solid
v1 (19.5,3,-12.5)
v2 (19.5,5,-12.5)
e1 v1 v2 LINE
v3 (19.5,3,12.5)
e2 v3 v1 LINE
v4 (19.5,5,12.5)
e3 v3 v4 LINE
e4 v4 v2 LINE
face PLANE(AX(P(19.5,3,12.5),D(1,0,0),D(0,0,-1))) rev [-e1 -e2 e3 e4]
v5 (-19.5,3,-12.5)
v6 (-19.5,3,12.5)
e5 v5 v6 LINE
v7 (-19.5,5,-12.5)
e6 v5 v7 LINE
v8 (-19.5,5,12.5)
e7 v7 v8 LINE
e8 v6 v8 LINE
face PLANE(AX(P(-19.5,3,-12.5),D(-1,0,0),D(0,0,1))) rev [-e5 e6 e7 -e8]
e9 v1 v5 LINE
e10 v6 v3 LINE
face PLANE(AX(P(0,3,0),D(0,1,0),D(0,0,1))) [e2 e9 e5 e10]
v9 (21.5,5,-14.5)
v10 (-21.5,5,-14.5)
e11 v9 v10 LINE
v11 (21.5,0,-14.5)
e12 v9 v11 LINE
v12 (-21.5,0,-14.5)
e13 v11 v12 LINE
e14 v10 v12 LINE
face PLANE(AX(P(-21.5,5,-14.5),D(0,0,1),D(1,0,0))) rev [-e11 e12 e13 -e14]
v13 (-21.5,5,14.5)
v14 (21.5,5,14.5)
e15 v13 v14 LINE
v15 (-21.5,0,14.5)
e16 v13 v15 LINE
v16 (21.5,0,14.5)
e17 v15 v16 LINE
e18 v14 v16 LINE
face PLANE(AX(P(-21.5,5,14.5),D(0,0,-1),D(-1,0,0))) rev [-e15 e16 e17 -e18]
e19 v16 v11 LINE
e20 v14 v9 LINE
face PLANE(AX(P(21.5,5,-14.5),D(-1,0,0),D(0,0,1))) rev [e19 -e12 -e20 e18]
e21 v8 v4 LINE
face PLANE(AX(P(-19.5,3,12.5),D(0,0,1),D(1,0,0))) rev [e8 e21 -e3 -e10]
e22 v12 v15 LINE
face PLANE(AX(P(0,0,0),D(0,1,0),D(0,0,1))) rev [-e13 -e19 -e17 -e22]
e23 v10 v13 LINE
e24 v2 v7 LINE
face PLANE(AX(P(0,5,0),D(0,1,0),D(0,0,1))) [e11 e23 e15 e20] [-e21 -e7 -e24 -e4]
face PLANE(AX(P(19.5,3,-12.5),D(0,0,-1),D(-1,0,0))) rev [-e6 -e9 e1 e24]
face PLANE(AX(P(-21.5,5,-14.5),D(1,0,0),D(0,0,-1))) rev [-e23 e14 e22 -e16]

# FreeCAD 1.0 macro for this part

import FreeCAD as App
import Part
import Sketcher
Q = App.Units.Quantity

doc = App.newDocument("Part")
params = doc.addObject("Spreadsheet::Sheet", "Params")
for row, (alias, value) in enumerate([
    ("sketch1_width", "43 mm"),
    ("sketch1_height", "29 mm"),
    ("pad1_length", "5 mm"),
    ("sketch2_width", "39 mm"),
    ("sketch2_height", "25 mm"),
    ("pocket1_length", "2 mm"),
], start=1):
    params.set(f"A{row}", alias)
    params.set(f"B{row}", "=" + value)
    params.setAlias(f"B{row}", alias)

body = doc.addObject("PartDesign::Body", "Body")

# Sketch on XZ plane
sketch1 = doc.addObject("Sketcher::SketchObject", "Sketch")
body.addObject(sketch1)
sketch1.AttachmentSupport = (doc.XZ_Plane, [""])
sketch1.MapMode = "FlatFace"
sketch1.addGeometry(Part.LineSegment(App.Vector(-21.5, -14.5, 0), App.Vector(-21.5, 14.5, 0)), False)
sketch1.addGeometry(Part.LineSegment(App.Vector(-21.5, 14.5, 0), App.Vector(21.5, 14.5, 0)), False)
sketch1.addGeometry(Part.LineSegment(App.Vector(21.5, 14.5, 0), App.Vector(21.5, -14.5, 0)), False)
sketch1.addGeometry(Part.LineSegment(App.Vector(21.5, -14.5, 0), App.Vector(-21.5, -14.5, 0)), False)
sketch1.addConstraint(Sketcher.Constraint("Coincident", 0, 2, 1, 1))
sketch1.addConstraint(Sketcher.Constraint("Coincident", 1, 2, 2, 1))
sketch1.addConstraint(Sketcher.Constraint("Coincident", 2, 2, 3, 1))
sketch1.addConstraint(Sketcher.Constraint("Coincident", 3, 2, 0, 1))
sketch1.addConstraint(Sketcher.Constraint("Vertical", 0))
sketch1.addConstraint(Sketcher.Constraint("Horizontal", 1))
sketch1.addConstraint(Sketcher.Constraint("Vertical", 2))
sketch1.addConstraint(Sketcher.Constraint("Horizontal", 3))
sketch1.addConstraint(Sketcher.Constraint("Symmetric", 0, 2, 2, 2, -1, 1))
sketch1.addConstraint(Sketcher.Constraint("DistanceX", 1, 1, 1, 2, Q("43 mm")))
sketch1.addConstraint(Sketcher.Constraint("DistanceY", 0, 1, 0, 2, Q("29 mm")))
sketch1.setExpression("Constraints[9]", "Params.sketch1_width")
sketch1.setExpression("Constraints[10]", "Params.sketch1_height")
pad1 = doc.addObject("PartDesign::Pad", "Pad")
body.addObject(pad1)
pad1.Profile = sketch1
pad1.setExpression("Length", "Params.pad1_length")
pad1.Reversed = True

# Sketch on XZ plane
sketch2 = doc.addObject("Sketcher::SketchObject", "Sketch001")
body.addObject(sketch2)
sketch2.AttachmentSupport = (doc.XZ_Plane, [""])
sketch2.MapMode = "FlatFace"
sketch2.AttachmentOffset = App.Placement(App.Vector(0, 0, -5), App.Rotation())
sketch2.addGeometry(Part.LineSegment(App.Vector(-19.5, -12.5, 0), App.Vector(-19.5, 12.5, 0)), False)
sketch2.addGeometry(Part.LineSegment(App.Vector(-19.5, 12.5, 0), App.Vector(19.5, 12.5, 0)), False)
sketch2.addGeometry(Part.LineSegment(App.Vector(19.5, 12.5, 0), App.Vector(19.5, -12.5, 0)), False)
sketch2.addGeometry(Part.LineSegment(App.Vector(19.5, -12.5, 0), App.Vector(-19.5, -12.5, 0)), False)
sketch2.addConstraint(Sketcher.Constraint("Coincident", 0, 2, 1, 1))
sketch2.addConstraint(Sketcher.Constraint("Coincident", 1, 2, 2, 1))
sketch2.addConstraint(Sketcher.Constraint("Coincident", 2, 2, 3, 1))
sketch2.addConstraint(Sketcher.Constraint("Coincident", 3, 2, 0, 1))
sketch2.addConstraint(Sketcher.Constraint("Vertical", 0))
sketch2.addConstraint(Sketcher.Constraint("Horizontal", 1))
sketch2.addConstraint(Sketcher.Constraint("Vertical", 2))
sketch2.addConstraint(Sketcher.Constraint("Horizontal", 3))
sketch2.addConstraint(Sketcher.Constraint("Symmetric", 0, 2, 2, 2, -1, 1))
sketch2.addConstraint(Sketcher.Constraint("DistanceX", 1, 1, 1, 2, Q("39 mm")))
sketch2.addConstraint(Sketcher.Constraint("DistanceY", 0, 1, 0, 2, Q("25 mm")))
sketch2.setExpression("Constraints[9]", "Params.sketch2_width")
sketch2.setExpression("Constraints[10]", "Params.sketch2_height")
pocket1 = doc.addObject("PartDesign::Pocket", "Pocket")
body.addObject(pocket1)
pocket1.Profile = sketch2
pocket1.setExpression("Length", "Params.pocket1_length")
pocket1.Reversed = True

doc.recompute()
